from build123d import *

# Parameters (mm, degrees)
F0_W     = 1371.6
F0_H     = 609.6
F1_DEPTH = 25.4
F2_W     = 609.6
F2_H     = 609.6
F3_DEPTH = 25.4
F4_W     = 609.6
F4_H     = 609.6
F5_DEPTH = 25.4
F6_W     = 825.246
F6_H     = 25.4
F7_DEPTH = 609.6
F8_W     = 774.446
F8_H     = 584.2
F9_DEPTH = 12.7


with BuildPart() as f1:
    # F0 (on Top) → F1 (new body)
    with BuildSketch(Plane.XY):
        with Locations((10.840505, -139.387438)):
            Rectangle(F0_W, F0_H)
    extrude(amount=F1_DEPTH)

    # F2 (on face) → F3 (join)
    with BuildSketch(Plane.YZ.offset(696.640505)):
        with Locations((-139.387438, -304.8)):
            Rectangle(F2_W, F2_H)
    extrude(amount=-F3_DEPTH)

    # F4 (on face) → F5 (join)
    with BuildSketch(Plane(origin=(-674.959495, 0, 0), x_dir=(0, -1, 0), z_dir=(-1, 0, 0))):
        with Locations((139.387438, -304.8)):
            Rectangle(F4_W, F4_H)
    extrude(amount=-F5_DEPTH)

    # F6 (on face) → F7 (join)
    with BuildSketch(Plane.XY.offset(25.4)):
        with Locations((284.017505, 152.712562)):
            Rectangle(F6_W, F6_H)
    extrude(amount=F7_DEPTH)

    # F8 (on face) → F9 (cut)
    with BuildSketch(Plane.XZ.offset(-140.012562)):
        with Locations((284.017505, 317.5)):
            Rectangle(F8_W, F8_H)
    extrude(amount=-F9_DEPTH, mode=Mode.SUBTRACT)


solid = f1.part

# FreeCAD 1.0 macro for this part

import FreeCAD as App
import Part
import Sketcher
from FreeCAD import Vector
Q = App.Units.Quantity

doc = App.newDocument("Part")
params = doc.addObject("Spreadsheet::Sheet", "Params")
for row, (alias, value) in enumerate([
    ("sketch1_width", "54 in"),
    ("sketch1_height", "24 in"),
    ("pad1_length", "1 in"),
    ("sketch2_width", "24 in"),
    ("pad2_length", "1 in"),
    ("sketch3_width", "24 in"),
    ("pad3_length", "1 in"),
    ("sketch4_height", "1 in"),
    ("sketch4_width", "32.49 in"),
    ("pad4_length", "24 in"),
    ("sketch5_height", "23 in"),
    ("sketch5_width", "30.49 in"),
    ("pocket1_length", "0.5 in"),
], start=1):
    params.set(f"A{row}", alias)
    params.set(f"B{row}", "=" + value)
    params.setAlias(f"B{row}", alias)

body = doc.addObject("PartDesign::Body", "Body")

sketch1 = body.newObject("Sketcher::SketchObject", "Sketch")
sketch1.AttachmentSupport = (doc.getObject("XY_Plane"), [""])
sketch1.MapMode = "FlatFace"
sketch1.addGeometry([
    Part.LineSegment(Vector(-675, 165, 0), Vector(-675, -444, 0)),
    Part.LineSegment(Vector(-675, -444, 0), Vector(697, -444, 0)),
    Part.LineSegment(Vector(697, -444, 0), Vector(697, 165, 0)),
    Part.LineSegment(Vector(697, 165, 0), Vector(-675, 165, 0)),
], False)
sketch1.addConstraint([
    Sketcher.Constraint("Coincident", 0, 2, 1, 1),
    Sketcher.Constraint("Coincident", 1, 2, 2, 1),
    Sketcher.Constraint("Coincident", 2, 2, 3, 1),
    Sketcher.Constraint("Coincident", 3, 2, 0, 1),
    Sketcher.Constraint("Vertical", 0),
    Sketcher.Constraint("Horizontal", 1),
    Sketcher.Constraint("Vertical", 2),
    Sketcher.Constraint("Horizontal", 3),
    Sketcher.Constraint("DistanceX", 1, 1, 1, 2, Q("54 in")),
    Sketcher.Constraint("DistanceY", 0, 2, 0, 1, Q("24 in")),
    Sketcher.Constraint("DistanceY", 0, 2, -1, 1, Q("444.187438 mm")),
    Sketcher.Constraint("DistanceX", 0, 2, -1, 1, Q("674.959495 mm")),
])
sketch1.setExpression("Constraints[8]", "Params.sketch1_width")
sketch1.setExpression("Constraints[9]", "Params.sketch1_height")
pad1 = body.newObject("PartDesign::Pad", "Pad")
pad1.Profile = sketch1
pad1.setExpression("Length", "Params.pad1_length")

sketch2 = body.newObject("Sketcher::SketchObject", "Sketch001")
sketch2.AttachmentSupport = (doc.getObject("YZ_Plane"), [""])
sketch2.MapMode = "FlatFace"
sketch2.AttachmentOffset = App.Placement(Vector(0, 0, 696.640505), App.Rotation())
sketch2.addGeometry([
    Part.LineSegment(Vector(-444, 0, 0), Vector(-444, -610, 0)),
    Part.LineSegment(Vector(-444, -610, 0), Vector(165, -610, 0)),
    Part.LineSegment(Vector(165, -610, 0), Vector(165, 0, 0)),
    Part.LineSegment(Vector(165, 0, 0), Vector(-444, 0, 0)),
], False)
sketch2.addConstraint([
    Sketcher.Constraint("Coincident", 0, 2, 1, 1),
    Sketcher.Constraint("Coincident", 1, 2, 2, 1),
    Sketcher.Constraint("Coincident", 2, 2, 3, 1),
    Sketcher.Constraint("Coincident", 3, 2, 0, 1),
    Sketcher.Constraint("Vertical", 0),
    Sketcher.Constraint("Horizontal", 1),
    Sketcher.Constraint("Vertical", 2),
    Sketcher.Constraint("Horizontal", 3),
    Sketcher.Constraint("PointOnObject", 2, 2, -1),
    Sketcher.Constraint("Equal", 3, 0),
    Sketcher.Constraint("DistanceX", 1, 1, 1, 2, Q("24 in")),
    Sketcher.Constraint("DistanceX", 0, 2, -1, 1, Q("444.187438 mm")),
])
sketch2.setExpression("Constraints[10]", "Params.sketch2_width")
pad2 = body.newObject("PartDesign::Pad", "Pad001")
pad2.Profile = sketch2
pad2.setExpression("Length", "Params.pad2_length")
pad2.Reversed = True

sketch3 = body.newObject("Sketcher::SketchObject", "Sketch002")
sketch3.AttachmentSupport = (doc.getObject("YZ_Plane"), [""])
sketch3.MapMode = "FlatFace"
sketch3.AttachmentOffset = App.Placement(Vector(0, 0, -674.959495), App.Rotation())
sketch3.addGeometry([
    Part.LineSegment(Vector(165, 0, 0), Vector(165, -610, 0)),
    Part.LineSegment(Vector(165, -610, 0), Vector(-444, -610, 0)),
    Part.LineSegment(Vector(-444, -610, 0), Vector(-444, 0, 0)),
    Part.LineSegment(Vector(-444, 0, 0), Vector(165, 0, 0)),
], False)
sketch3.addConstraint([
    Sketcher.Constraint("Coincident", 0, 2, 1, 1),
    Sketcher.Constraint("Coincident", 1, 2, 2, 1),
    Sketcher.Constraint("Coincident", 2, 2, 3, 1),
    Sketcher.Constraint("Coincident", 3, 2, 0, 1),
    Sketcher.Constraint("Vertical", 0),
    Sketcher.Constraint("Horizontal", 1),
    Sketcher.Constraint("Vertical", 2),
    Sketcher.Constraint("Horizontal", 3),
    Sketcher.Constraint("PointOnObject", 2, 2, -1),
    Sketcher.Constraint("Equal", 3, 0),
    Sketcher.Constraint("DistanceX", 1, 2, 1, 1, Q("24 in")),
    Sketcher.Constraint("DistanceX", -1, 1, 0, 2, Q("165.412562 mm")),
])
sketch3.setExpression("Constraints[10]", "Params.sketch3_width")
pad3 = body.newObject("PartDesign::Pad", "Pad002")
pad3.Profile = sketch3
pad3.setExpression("Length", "Params.pad3_length")

sketch4 = body.newObject("Sketcher::SketchObject", "Sketch003")
sketch4.AttachmentSupport = (doc.getObject("XY_Plane"), [""])
sketch4.MapMode = "FlatFace"
sketch4.AttachmentOffset = App.Placement(Vector(0, 0, 1 * 25.4), App.Rotation())
sketch4.addGeometry([
    Part.LineSegment(Vector(-129, 165, 0), Vector(-129, 140, 0)),
    Part.LineSegment(Vector(-129, 140, 0), Vector(697, 140, 0)),
    Part.LineSegment(Vector(697, 140, 0), Vector(697, 165, 0)),
    Part.LineSegment(Vector(697, 165, 0), Vector(-129, 165, 0)),
], False)
sketch4.addConstraint([
    Sketcher.Constraint("Coincident", 0, 2, 1, 1),
    Sketcher.Constraint("Coincident", 1, 2, 2, 1),
    Sketcher.Constraint("Coincident", 2, 2, 3, 1),
    Sketcher.Constraint("Coincident", 3, 2, 0, 1),
    Sketcher.Constraint("Vertical", 0),
    Sketcher.Constraint("Horizontal", 1),
    Sketcher.Constraint("Vertical", 2),
    Sketcher.Constraint("Horizontal", 3),
    Sketcher.Constraint("DistanceY", 0, 2, 0, 1, Q("1 in")),
    Sketcher.Constraint("DistanceX", 1, 1, 1, 2, Q("32.49 in")),
    Sketcher.Constraint("DistanceY", -1, 1, 0, 2, Q("140.012562 mm")),
    Sketcher.Constraint("DistanceX", 0, 2, -1, 1, Q("128.605495 mm")),
])
sketch4.setExpression("Constraints[8]", "Params.sketch4_height")
sketch4.setExpression("Constraints[9]", "Params.sketch4_width")
pad4 = body.newObject("PartDesign::Pad", "Pad003")
pad4.Profile = sketch4
pad4.setExpression("Length", "Params.pad4_length")

sketch5 = body.newObject("Sketcher::SketchObject", "Sketch004")
sketch5.AttachmentSupport = (doc.getObject("XZ_Plane"), [""])
sketch5.MapMode = "FlatFace"
sketch5.AttachmentOffset = App.Placement(Vector(0, 0, -140.012562), App.Rotation())
sketch5.addGeometry([
    Part.LineSegment(Vector(-103, 610, 0), Vector(-103, 25, 0)),
    Part.LineSegment(Vector(-103, 25, 0), Vector(671, 25, 0)),
    Part.LineSegment(Vector(671, 25, 0), Vector(671, 610, 0)),
    Part.LineSegment(Vector(671, 610, 0), Vector(-103, 610, 0)),
], False)
sketch5.addConstraint([
    Sketcher.Constraint("Coincident", 0, 2, 1, 1),
    Sketcher.Constraint("Coincident", 1, 2, 2, 1),
    Sketcher.Constraint("Coincident", 2, 2, 3, 1),
    Sketcher.Constraint("Coincident", 3, 2, 0, 1),
    Sketcher.Constraint("Vertical", 0),
    Sketcher.Constraint("Horizontal", 1),
    Sketcher.Constraint("Vertical", 2),
    Sketcher.Constraint("Horizontal", 3),
    Sketcher.Constraint("DistanceY", 0, 2, 0, 1, Q("23 in")),
    Sketcher.Constraint("DistanceY", -1, 1, 0, 2, Q("1 in")),
    Sketcher.Constraint("DistanceX", 1, 1, 1, 2, Q("30.49 in")),
    Sketcher.Constraint("DistanceX", 0, 2, -1, 1, Q("103.205495 mm")),
])
sketch5.setExpression("Constraints[8]", "Params.sketch5_height")
sketch5.setExpression("Constraints[10]", "Params.sketch5_width")
pocket1 = body.newObject("PartDesign::Pocket", "Pocket")
pocket1.Profile = sketch5
pocket1.setExpression("Length", "Params.pocket1_length")

doc.recompute()
